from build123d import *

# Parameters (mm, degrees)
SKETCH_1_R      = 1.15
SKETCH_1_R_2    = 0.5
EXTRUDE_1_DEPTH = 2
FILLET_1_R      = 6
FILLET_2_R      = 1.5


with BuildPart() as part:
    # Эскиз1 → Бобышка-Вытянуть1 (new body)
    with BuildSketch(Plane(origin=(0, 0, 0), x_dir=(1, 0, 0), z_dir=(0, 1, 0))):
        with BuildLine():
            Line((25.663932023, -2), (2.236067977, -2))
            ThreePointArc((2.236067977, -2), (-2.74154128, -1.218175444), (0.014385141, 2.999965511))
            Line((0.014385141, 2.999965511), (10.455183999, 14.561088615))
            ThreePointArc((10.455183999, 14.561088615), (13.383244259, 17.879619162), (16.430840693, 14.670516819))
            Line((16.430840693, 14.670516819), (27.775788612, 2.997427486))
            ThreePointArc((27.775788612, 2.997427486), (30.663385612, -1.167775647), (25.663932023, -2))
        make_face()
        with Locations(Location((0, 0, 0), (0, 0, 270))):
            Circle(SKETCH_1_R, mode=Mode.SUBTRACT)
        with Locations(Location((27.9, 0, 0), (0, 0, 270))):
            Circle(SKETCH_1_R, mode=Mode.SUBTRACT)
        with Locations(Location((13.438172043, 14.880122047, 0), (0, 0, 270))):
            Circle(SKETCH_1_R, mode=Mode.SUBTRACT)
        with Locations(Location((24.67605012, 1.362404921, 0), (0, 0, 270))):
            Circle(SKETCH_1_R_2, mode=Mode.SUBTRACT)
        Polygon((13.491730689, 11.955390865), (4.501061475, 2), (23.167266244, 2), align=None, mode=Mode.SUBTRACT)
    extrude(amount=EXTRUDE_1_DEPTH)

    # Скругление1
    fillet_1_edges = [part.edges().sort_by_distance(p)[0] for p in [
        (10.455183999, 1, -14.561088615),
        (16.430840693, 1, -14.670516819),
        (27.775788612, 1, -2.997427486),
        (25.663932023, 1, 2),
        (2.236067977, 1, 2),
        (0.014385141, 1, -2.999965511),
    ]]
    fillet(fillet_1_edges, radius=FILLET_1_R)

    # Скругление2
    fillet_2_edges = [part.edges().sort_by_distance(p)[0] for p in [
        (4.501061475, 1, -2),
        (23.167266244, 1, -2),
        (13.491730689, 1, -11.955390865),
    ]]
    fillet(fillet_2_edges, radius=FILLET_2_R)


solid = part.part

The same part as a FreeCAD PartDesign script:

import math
import FreeCAD as App
import Part
import Sketcher
Q = App.Units.Quantity


def edges_at(feature, points):
    """Names of the edges that pass closest to the given points."""
    edges = feature.Shape.Edges
    near = lambda p: min(range(len(edges)), key=lambda i: edges[i].distToShape(Part.Vertex(*p))[0])
    return sorted({f"Edge{near(p) + 1}" for p in points})


def add_polygon(sketch, points):
    """Adds a closed chain of lines whose ends are joined by coincident constraints."""
    first, n = sketch.GeometryCount, len(points)
    for a, b in zip(points, points[1:] + points[:1]):
        sketch.addGeometry(Part.LineSegment(App.Vector(*a, 0), App.Vector(*b, 0)), False)
    for i in range(n):
        sketch.addConstraint(Sketcher.Constraint("Coincident", first + i, 2, first + (i + 1) % n, 1))

doc = App.newDocument("Part")
body = doc.addObject("PartDesign::Body", "Body")

sketch1 = body.newObject("Sketcher::SketchObject", "Sketch")
sketch1.AttachmentSupport = (doc.getObject("XZ_Plane"), [""])
sketch1.MapMode = "FlatFace"
sketch1.addGeometry(Part.LineSegment(App.Vector(2.236068, 2, 0), App.Vector(25.663932, 2, 0)), False)
sketch1.addGeometry(Part.ArcOfCircle(Part.Circle(App.Vector(27.9, 0, 0), App.Vector(0, 0, 1), 3), math.radians(-92.372941), math.radians(138.189685)), False)
sketch1.addGeometry(Part.LineSegment(App.Vector(27.775789, -2.997427, 0), App.Vector(16.430841, -14.670517, 0)), False)
sketch1.addGeometry(Part.ArcOfCircle(Part.Circle(App.Vector(13.438172, -14.880122, 0), App.Vector(0, 0, 1), 3), math.radians(173.895367), math.radians(364.006429)), False)
sketch1.addGeometry(Part.LineSegment(App.Vector(10.455184, -14.561089, 0), App.Vector(0.014385, -2.999966, 0)), False)
sketch1.addGeometry(Part.ArcOfCircle(Part.Circle(App.Vector(0, 0, 0), App.Vector(0, 0, 1), 3), math.radians(41.810315), math.radians(270.274737)), False)
sketch1.addGeometry(Part.Circle(App.Vector(27.9, 0, 0), App.Vector(0, 0, 1), 1.15), False)
sketch1.addGeometry(Part.Circle(App.Vector(24.67605, -1.362405, 0), App.Vector(0, 0, 1), 0.5), False)
sketch1.addGeometry(Part.Circle(App.Vector(0, 0, 0), App.Vector(0, 0, 1), 1.15), False)
add_polygon(sketch1, [(13.491731, -11.955391), (23.167266, -2), (4.501061, -2)])
sketch1.addGeometry(Part.Circle(App.Vector(13.438172, -14.880122, 0), App.Vector(0, 0, 1), 1.15), False)
sketch1.addConstraint(Sketcher.Constraint("Coincident", 0, 2, 1, 2))
sketch1.addConstraint(Sketcher.Constraint("Coincident", 1, 1, 2, 1))
sketch1.addConstraint(Sketcher.Constraint("Coincident", 2, 2, 3, 2))
sketch1.addConstraint(Sketcher.Constraint("Coincident", 3, 1, 4, 1))
sketch1.addConstraint(Sketcher.Constraint("Coincident", 4, 2, 5, 2))
sketch1.addConstraint(Sketcher.Constraint("Coincident", 5, 1, 0, 1))
sketch1.addConstraint(Sketcher.Constraint("Horizontal", 0))
sketch1.addConstraint(Sketcher.Constraint("Horizontal", 10))
sketch1.addConstraint(Sketcher.Constraint("Coincident", 5, 3, -1, 1))
sketch1.addConstraint(Sketcher.Constraint("Coincident", 8, 3, -1, 1))
sketch1.addConstraint(Sketcher.Constraint("Coincident", 6, 3, 1, 3))
sketch1.addConstraint(Sketcher.Constraint("Coincident", 12, 3, 3, 3))
sketch1.addConstraint(Sketcher.Constraint("PointOnObject", 1, 3, -1))
sketch1.addConstraint(Sketcher.Constraint("Diameter", 7, Q("1 mm")))
sketch1.addConstraint(Sketcher.Constraint("Radius", 1, Q("3 mm")))
sketch1.addConstraint(Sketcher.Constraint("Radius", 3, Q("3 mm")))
sketch1.addConstraint(Sketcher.Constraint("Radius", 5, Q("3 mm")))
sketch1.addConstraint(Sketcher.Constraint("Diameter", 6, Q("2.3 mm")))
sketch1.addConstraint(Sketcher.Constraint("Diameter", 8, Q("2.3 mm")))
sketch1.addConstraint(Sketcher.Constraint("Diameter", 12, Q("2.3 mm")))
sketch1.addConstraint(Sketcher.Constraint("DistanceY", -1, 1, 0, 2, Q("2 mm")))
sketch1.addConstraint(Sketcher.Constraint("DistanceY", 9, 2, -1, 1, Q("2 mm")))
sketch1.addConstraint(Sketcher.Constraint("DistanceX", -1, 1, 1, 3, Q("27.9 mm")))
sketch1.addConstraint(Sketcher.Constraint("DistanceX", 4, 2, 3, 1, Q("10.440799 mm")))
sketch1.addConstraint(Sketcher.Constraint("Distance", 9, Q("13.882572 mm")))
sketch1.addConstraint(Sketcher.Constraint("DistanceX", 10, 2, 10, 1, Q("18.666205 mm")))
sketch1.addConstraint(Sketcher.Constraint("DistanceX", -1, 1, 7, 3, Q("24.67605 mm")))
sketch1.addConstraint(Sketcher.Constraint("DistanceX", -1, 1, 1, 1, Q("27.775789 mm")))
sketch1.addConstraint(Sketcher.Constraint("DistanceX", -1, 1, 2, 2, Q("16.430841 mm")))
sketch1.addConstraint(Sketcher.Constraint("DistanceY", 3, 1, -1, 1, Q("14.561089 mm")))
sketch1.addConstraint(Sketcher.Constraint("DistanceX", -1, 1, 10, 2, Q("4.501061 mm")))
sketch1.addConstraint(Sketcher.Constraint("DistanceX", -1, 1, 11, 2, Q("13.491731 mm")))
sketch1.addConstraint(Sketcher.Constraint("DistanceX", 3, 3, 7, 3, Q("11.237878 mm")))
sketch1.addConstraint(Sketcher.Constraint("DistanceY", 2, 2, 7, 3, Q("13.308112 mm")))
sketch1.addConstraint(Sketcher.Constraint("DistanceY", 2, 2, 1, 1, Q("11.673089 mm")))
pad1 = body.newObject("PartDesign::Pad", "Pad")
pad1.Profile = sketch1
pad1.Length = 2
pad1.Reversed = True
doc.recompute()

fillet = body.newObject("PartDesign::Fillet", "Fillet")
fillet.Base = (pad1, edges_at(pad1, [
    (10.455, 1, -14.561),
    (16.431, 1, -14.671),
    (27.776, 1, -2.997),
    (25.664, 1, 2),
    (2.236, 1, 2),
    (0.014, 1, -3),
]))
fillet.Radius = 6
doc.recompute()

fillet2 = body.newObject("PartDesign::Fillet", "Fillet001")
fillet2.Base = (fillet, edges_at(fillet, [(4.501, 1, -2), (23.167, 1, -2), (13.492, 1, -11.955)]))
fillet2.Radius = 1.5

doc.recompute()
